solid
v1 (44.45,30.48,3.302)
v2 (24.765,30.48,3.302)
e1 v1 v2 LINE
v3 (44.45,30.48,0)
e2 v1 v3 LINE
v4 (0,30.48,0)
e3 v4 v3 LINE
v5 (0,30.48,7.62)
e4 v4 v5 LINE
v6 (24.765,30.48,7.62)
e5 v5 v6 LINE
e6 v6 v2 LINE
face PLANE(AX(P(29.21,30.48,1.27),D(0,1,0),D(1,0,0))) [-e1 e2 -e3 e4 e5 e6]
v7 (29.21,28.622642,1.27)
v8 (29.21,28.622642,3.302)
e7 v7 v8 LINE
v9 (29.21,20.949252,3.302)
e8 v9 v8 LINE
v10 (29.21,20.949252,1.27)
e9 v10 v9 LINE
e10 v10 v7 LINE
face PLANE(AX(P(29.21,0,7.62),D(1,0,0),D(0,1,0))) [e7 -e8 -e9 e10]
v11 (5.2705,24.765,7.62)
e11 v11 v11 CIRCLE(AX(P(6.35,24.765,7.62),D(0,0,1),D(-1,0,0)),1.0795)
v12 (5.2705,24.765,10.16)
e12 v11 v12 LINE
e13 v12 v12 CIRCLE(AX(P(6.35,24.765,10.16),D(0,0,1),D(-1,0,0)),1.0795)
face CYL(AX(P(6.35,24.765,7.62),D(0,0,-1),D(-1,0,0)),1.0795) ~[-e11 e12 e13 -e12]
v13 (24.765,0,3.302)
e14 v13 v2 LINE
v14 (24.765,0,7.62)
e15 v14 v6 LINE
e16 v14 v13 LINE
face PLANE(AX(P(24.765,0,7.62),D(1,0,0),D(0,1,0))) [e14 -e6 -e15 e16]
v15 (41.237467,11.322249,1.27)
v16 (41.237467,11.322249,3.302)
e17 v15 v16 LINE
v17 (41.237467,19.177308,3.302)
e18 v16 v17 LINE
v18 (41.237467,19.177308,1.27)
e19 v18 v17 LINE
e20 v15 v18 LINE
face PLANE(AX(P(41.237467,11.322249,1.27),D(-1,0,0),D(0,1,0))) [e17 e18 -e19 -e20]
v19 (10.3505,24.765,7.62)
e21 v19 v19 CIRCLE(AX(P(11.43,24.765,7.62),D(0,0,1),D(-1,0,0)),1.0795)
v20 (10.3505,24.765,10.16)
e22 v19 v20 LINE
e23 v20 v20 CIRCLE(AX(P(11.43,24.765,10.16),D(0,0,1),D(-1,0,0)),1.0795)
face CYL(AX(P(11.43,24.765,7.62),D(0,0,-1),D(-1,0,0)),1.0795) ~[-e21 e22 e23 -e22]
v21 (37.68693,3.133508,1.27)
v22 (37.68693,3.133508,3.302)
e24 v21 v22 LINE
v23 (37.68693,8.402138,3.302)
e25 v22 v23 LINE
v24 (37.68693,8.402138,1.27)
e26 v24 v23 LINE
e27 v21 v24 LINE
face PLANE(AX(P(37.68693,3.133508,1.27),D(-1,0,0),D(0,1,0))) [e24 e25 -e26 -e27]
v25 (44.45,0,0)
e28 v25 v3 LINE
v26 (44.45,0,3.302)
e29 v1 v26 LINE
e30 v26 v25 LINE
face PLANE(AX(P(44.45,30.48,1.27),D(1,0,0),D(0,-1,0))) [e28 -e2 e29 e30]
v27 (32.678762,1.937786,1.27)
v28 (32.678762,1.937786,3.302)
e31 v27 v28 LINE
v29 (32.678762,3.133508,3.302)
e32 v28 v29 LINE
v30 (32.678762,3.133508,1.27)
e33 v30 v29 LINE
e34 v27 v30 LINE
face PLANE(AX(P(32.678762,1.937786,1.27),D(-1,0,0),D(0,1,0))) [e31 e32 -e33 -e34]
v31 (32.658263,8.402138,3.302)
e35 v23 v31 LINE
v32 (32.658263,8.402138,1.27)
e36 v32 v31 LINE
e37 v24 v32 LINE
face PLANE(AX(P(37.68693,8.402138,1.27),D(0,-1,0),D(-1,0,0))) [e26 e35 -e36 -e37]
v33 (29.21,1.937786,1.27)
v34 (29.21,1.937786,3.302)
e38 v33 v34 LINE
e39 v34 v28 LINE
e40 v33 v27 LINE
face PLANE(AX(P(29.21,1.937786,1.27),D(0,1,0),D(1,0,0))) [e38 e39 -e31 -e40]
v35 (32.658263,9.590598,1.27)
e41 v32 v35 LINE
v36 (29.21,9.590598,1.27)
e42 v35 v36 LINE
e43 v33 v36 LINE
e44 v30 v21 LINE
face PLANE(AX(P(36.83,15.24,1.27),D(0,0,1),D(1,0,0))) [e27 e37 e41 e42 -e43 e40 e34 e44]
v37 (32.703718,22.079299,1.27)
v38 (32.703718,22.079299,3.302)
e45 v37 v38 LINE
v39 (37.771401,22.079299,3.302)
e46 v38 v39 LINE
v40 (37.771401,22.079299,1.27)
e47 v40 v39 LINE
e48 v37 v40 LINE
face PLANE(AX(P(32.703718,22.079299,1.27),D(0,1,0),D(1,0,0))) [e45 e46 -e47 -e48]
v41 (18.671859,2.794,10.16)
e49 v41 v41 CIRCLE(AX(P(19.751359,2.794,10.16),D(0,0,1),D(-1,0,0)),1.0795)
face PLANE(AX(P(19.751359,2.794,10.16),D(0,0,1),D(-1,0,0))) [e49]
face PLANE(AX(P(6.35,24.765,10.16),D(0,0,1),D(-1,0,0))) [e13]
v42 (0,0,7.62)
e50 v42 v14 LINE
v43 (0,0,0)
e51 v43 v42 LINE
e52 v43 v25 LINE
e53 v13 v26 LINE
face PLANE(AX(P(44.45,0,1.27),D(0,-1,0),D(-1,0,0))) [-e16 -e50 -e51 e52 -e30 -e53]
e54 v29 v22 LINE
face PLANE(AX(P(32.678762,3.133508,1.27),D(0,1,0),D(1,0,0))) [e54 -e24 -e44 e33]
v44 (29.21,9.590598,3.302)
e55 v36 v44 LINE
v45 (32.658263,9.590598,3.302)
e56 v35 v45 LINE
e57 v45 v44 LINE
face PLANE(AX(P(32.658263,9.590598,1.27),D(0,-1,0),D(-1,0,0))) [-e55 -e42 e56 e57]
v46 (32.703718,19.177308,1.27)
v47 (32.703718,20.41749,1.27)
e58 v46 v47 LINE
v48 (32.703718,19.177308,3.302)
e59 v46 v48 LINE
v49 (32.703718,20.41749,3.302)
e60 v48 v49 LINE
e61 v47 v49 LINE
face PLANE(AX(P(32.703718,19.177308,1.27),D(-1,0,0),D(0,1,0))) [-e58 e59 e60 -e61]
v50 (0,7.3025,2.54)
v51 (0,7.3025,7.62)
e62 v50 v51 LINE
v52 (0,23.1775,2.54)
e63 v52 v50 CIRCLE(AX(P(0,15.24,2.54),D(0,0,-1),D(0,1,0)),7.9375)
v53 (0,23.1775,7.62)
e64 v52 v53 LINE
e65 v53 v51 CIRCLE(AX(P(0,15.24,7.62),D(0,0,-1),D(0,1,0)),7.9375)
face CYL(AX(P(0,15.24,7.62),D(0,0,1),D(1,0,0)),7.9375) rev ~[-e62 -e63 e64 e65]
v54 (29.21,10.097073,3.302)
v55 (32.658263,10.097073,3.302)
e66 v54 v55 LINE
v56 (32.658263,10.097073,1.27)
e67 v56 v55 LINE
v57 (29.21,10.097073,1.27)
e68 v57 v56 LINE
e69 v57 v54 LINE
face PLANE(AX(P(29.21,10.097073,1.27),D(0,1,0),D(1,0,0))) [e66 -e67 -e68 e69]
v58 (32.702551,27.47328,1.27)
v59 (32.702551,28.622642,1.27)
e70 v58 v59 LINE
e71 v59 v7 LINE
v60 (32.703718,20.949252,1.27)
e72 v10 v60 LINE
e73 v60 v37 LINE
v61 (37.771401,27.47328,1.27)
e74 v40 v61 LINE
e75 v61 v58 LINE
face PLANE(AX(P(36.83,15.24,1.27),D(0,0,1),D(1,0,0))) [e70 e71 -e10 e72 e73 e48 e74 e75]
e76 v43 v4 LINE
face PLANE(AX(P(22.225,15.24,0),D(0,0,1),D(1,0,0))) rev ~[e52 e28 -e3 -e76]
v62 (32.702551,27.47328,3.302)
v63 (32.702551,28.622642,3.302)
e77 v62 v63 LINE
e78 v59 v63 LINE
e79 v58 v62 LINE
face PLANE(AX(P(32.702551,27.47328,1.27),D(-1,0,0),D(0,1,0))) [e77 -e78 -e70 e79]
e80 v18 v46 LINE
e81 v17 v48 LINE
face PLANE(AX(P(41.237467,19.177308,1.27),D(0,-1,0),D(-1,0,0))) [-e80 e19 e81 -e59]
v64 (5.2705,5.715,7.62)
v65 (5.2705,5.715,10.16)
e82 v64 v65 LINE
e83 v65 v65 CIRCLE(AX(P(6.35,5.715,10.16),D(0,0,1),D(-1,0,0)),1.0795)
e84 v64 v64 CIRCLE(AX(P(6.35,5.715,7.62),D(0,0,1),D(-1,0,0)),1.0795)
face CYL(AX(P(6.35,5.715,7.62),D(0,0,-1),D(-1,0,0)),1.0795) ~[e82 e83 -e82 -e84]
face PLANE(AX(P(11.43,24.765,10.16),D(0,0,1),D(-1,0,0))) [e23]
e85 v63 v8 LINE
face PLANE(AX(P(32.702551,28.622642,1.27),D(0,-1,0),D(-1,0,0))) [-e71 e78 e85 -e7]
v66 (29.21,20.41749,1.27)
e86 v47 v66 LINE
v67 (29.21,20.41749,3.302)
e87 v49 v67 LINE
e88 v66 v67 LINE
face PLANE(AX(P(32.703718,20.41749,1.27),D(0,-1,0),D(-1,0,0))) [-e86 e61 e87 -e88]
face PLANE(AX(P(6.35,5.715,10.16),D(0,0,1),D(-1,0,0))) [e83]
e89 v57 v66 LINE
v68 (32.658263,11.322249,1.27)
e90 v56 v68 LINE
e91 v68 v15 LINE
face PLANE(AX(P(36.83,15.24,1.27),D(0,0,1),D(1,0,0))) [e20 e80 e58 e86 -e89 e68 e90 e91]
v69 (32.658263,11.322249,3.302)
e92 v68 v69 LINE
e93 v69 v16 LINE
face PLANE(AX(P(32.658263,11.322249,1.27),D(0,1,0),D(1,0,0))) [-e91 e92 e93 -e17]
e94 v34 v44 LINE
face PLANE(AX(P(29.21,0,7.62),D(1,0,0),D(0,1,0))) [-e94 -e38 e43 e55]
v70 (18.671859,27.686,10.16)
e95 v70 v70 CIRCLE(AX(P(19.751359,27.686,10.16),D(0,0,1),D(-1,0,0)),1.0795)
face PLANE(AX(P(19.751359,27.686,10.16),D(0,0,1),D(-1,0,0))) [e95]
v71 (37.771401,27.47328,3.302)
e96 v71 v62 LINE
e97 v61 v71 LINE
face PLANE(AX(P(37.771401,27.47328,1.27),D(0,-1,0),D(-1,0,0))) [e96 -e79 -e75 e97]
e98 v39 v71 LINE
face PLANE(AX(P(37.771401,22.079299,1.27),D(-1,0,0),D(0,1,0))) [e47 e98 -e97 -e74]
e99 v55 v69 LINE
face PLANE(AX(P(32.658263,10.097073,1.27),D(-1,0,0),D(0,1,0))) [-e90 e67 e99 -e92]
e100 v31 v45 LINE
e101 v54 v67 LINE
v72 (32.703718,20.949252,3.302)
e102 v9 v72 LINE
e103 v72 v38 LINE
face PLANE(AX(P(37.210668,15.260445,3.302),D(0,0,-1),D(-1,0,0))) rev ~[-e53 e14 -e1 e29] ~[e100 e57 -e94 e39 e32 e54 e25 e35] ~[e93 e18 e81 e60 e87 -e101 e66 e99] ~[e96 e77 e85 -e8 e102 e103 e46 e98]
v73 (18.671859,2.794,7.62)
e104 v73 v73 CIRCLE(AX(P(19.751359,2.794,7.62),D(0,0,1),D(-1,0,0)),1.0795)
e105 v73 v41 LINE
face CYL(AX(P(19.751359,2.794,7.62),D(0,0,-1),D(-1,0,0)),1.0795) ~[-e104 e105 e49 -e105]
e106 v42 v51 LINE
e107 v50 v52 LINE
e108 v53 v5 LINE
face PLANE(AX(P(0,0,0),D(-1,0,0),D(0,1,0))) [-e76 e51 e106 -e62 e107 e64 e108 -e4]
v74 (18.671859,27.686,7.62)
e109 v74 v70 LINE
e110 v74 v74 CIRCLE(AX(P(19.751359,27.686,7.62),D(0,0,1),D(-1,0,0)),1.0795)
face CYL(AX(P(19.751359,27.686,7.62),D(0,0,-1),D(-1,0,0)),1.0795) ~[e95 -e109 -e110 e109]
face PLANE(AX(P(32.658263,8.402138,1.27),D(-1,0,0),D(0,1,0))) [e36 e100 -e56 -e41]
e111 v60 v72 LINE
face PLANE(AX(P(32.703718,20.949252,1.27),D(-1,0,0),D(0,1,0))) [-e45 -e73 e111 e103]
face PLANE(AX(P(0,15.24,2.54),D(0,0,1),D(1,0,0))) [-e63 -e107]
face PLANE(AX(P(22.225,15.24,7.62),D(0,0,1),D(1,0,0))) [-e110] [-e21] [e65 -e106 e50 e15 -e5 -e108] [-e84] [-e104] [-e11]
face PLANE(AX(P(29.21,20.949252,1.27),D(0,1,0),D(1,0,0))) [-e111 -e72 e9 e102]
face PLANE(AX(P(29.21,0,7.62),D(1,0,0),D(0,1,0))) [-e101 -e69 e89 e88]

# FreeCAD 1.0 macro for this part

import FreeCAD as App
import Part
import Sketcher
from FreeCAD import Vector
Q = App.Units.Quantity

doc = App.newDocument("Part")
params = doc.addObject("Spreadsheet::Sheet", "Params")
for row, (alias, value) in enumerate([
    ("sketch1_height", "1.2 in"),
    ("sketch1_width", "1.75 in"),
    ("pad1_length", "0.3 in"),
    ("sketch2_diameter", "0.085 in"),
    ("pad2_length", "0.1 in"),
    ("sketch3_diameter", "0.625 in"),
    ("pocket1_length", "0.2 in"),
    ("sketch4_width", "0.6 in"),
    ("sketch4_height", "1.2 in"),
    ("pocket2_length", "0.25 in"),
    ("sketch5_height", "1.2 in"),
    ("sketch5_width", "0.175 in"),
    ("pocket3_length", "0.17 in"),
    ("sketch6_width", "0.6 in"),
    ("sketch6_height", "1.2 in"),
    ("pad3_length", "0.08 in"),
], start=1):
    params.set(f"A{row}", alias)
    params.set(f"B{row}", "=" + value)
    params.setAlias(f"B{row}", alias)

body = doc.addObject("PartDesign::Body", "Body")

# Sketch on XY plane
sketch1 = body.newObject("Sketcher::SketchObject", "Sketch")
sketch1.AttachmentSupport = (doc.getObject("XY_Plane"), [""])
sketch1.MapMode = "FlatFace"
sketch1.addGeometry([
    Part.LineSegment(Vector(0, 30, 0), Vector(0, 0, 0)),
    Part.LineSegment(Vector(0, 0, 0), Vector(44, 0, 0)),
    Part.LineSegment(Vector(44, 0, 0), Vector(44, 30, 0)),
    Part.LineSegment(Vector(44, 30, 0), Vector(0, 30, 0)),
], False)
sketch1.addConstraint([
    Sketcher.Constraint("Coincident", 0, 2, 1, 1),
    Sketcher.Constraint("Coincident", 1, 2, 2, 1),
    Sketcher.Constraint("Coincident", 2, 2, 3, 1),
    Sketcher.Constraint("Coincident", 3, 2, 0, 1),
    Sketcher.Constraint("Vertical", 0),
    Sketcher.Constraint("Horizontal", 1),
    Sketcher.Constraint("Vertical", 2),
    Sketcher.Constraint("Horizontal", 3),
    Sketcher.Constraint("Coincident", 0, 2, -1, 1),
    Sketcher.Constraint("DistanceY", 0, 2, 0, 1, Q("1.2 in")),
    Sketcher.Constraint("DistanceX", 1, 1, 1, 2, Q("1.75 in")),
])
sketch1.setExpression("Constraints[9]", "Params.sketch1_height")
sketch1.setExpression("Constraints[10]", "Params.sketch1_width")
pad1 = body.newObject("PartDesign::Pad", "Pad")
pad1.Profile = sketch1
pad1.setExpression("Length", "Params.pad1_length")

# Sketch on XY plane
sketch2 = body.newObject("Sketcher::SketchObject", "Sketch001")
sketch2.AttachmentSupport = (doc.getObject("XY_Plane"), [""])
sketch2.MapMode = "FlatFace"
sketch2.AttachmentOffset = App.Placement(Vector(0, 0, 0.3 * 25.4), App.Rotation())
sketch2.addGeometry([
    Part.Circle(Vector(6.3, 24.8, 0), Vector(0, 0, 1), 1.1),  # 0
    Part.Circle(Vector(6.3, 5.7, 0), Vector(0, 0, 1), 1.1),  # 1
    Part.Circle(Vector(11.4, 24.8, 0), Vector(0, 0, 1), 1.1),  # 2
    Part.Circle(Vector(19.8, 27.7, 0), Vector(0, 0, 1), 1.1),  # 3
    Part.Circle(Vector(19.8, 2.8, 0), Vector(0, 0, 1), 1.1),  # 4
], False)
sketch2.addConstraint([
    Sketcher.Constraint("Equal", 0, 1),
    Sketcher.Constraint("Equal", 1, 2),
    Sketcher.Constraint("Equal", 2, 3),
    Sketcher.Constraint("Equal", 3, 4),
    Sketcher.Constraint("Horizontal", 0, 3, 2, 3),
    Sketcher.Constraint("Vertical", 0, 3, 1, 3),
    Sketcher.Constraint("Vertical", 3, 3, 4, 3),
    Sketcher.Constraint("Diameter", 0, Q("0.085 in")),
    Sketcher.Constraint("DistanceX", 0, 3, 2, 3, Q("0.2 in")),
    Sketcher.Constraint("DistanceX", -1, 1, 0, 3, Q("0.25 in")),
    Sketcher.Constraint("DistanceY", -1, 1, 3, 3, Q("1.09 in")),
    Sketcher.Constraint("DistanceY", -1, 1, 4, 3, Q("0.11 in")),
    Sketcher.Constraint("DistanceY", 1, 3, 0, 3, Q("0.75 in")),
    Sketcher.Constraint("DistanceY", -1, 1, 0, 3, Q("0.975 in")),
    Sketcher.Constraint("DistanceX", -1, 1, 3, 3, Q("19.751359 mm")),
])
sketch2.setExpression("Constraints[7]", "Params.sketch2_diameter")
pad2 = body.newObject("PartDesign::Pad", "Pad001")
pad2.Profile = sketch2
pad2.setExpression("Length", "Params.pad2_length")

# Sketch on XY plane
sketch3 = body.newObject("Sketcher::SketchObject", "Sketch002")
sketch3.AttachmentSupport = (doc.getObject("XY_Plane"), [""])
sketch3.MapMode = "FlatFace"
sketch3.AttachmentOffset = App.Placement(Vector(0, 0, 0.3 * 25.4), App.Rotation())
sketch3.addGeometry(Part.Circle(Vector(0, 15, 0), Vector(0, 0, 1), 8), False)
sketch3.addConstraint([
    Sketcher.Constraint("PointOnObject", 0, 3, -2),
    Sketcher.Constraint("Diameter", 0, Q("0.625 in")),
    Sketcher.Constraint("DistanceY", -1, 1, 0, 3, Q("0.6 in")),
])
sketch3.setExpression("Constraints[1]", "Params.sketch3_diameter")
pocket1 = body.newObject("PartDesign::Pocket", "Pocket")
pocket1.Profile = sketch3
pocket1.setExpression("Length", "Params.pocket1_length")

# Sketch on XY plane
sketch4 = body.newObject("Sketcher::SketchObject", "Sketch003")
sketch4.AttachmentSupport = (doc.getObject("XY_Plane"), [""])
sketch4.MapMode = "FlatFace"
sketch4.AttachmentOffset = App.Placement(Vector(0, 0, 0.3 * 25.4), App.Rotation())
sketch4.addGeometry([
    Part.LineSegment(Vector(29, 30, 0), Vector(29, 0, 0)),
    Part.LineSegment(Vector(29, 0, 0), Vector(44, 0, 0)),
    Part.LineSegment(Vector(44, 0, 0), Vector(44, 30, 0)),
    Part.LineSegment(Vector(44, 30, 0), Vector(29, 30, 0)),
], False)
sketch4.addConstraint([
    Sketcher.Constraint("Coincident", 0, 2, 1, 1),
    Sketcher.Constraint("Coincident", 1, 2, 2, 1),
    Sketcher.Constraint("Coincident", 2, 2, 3, 1),
    Sketcher.Constraint("Coincident", 3, 2, 0, 1),
    Sketcher.Constraint("Vertical", 0),
    Sketcher.Constraint("Horizontal", 1),
    Sketcher.Constraint("Vertical", 2),
    Sketcher.Constraint("Horizontal", 3),
    Sketcher.Constraint("PointOnObject", 0, 2, -1),
    Sketcher.Constraint("DistanceX", 1, 1, 1, 2, Q("0.6 in")),
    Sketcher.Constraint("DistanceY", 0, 2, 0, 1, Q("1.2 in")),
    Sketcher.Constraint("DistanceX", -1, 1, 0, 2, Q("1.15 in")),
])
sketch4.setExpression("Constraints[9]", "Params.sketch4_width")
sketch4.setExpression("Constraints[10]", "Params.sketch4_height")
pocket2 = body.newObject("PartDesign::Pocket", "Pocket001")
pocket2.Profile = sketch4
pocket2.setExpression("Length", "Params.pocket2_length")

# Sketch on XY plane
sketch5 = body.newObject("Sketcher::SketchObject", "Sketch004")
sketch5.AttachmentSupport = (doc.getObject("XY_Plane"), [""])
sketch5.MapMode = "FlatFace"
sketch5.AttachmentOffset = App.Placement(Vector(0, 0, 0.3 * 25.4), App.Rotation())
sketch5.addGeometry([
    Part.LineSegment(Vector(24.8, 30.5, 0), Vector(24.8, 0, 0)),
    Part.LineSegment(Vector(24.8, 0, 0), Vector(29.2, 0, 0)),
    Part.LineSegment(Vector(29.2, 0, 0), Vector(29.2, 30.5, 0)),
    Part.LineSegment(Vector(29.2, 30.5, 0), Vector(24.8, 30.5, 0)),
], False)
sketch5.addConstraint([
    Sketcher.Constraint("Coincident", 0, 2, 1, 1),
    Sketcher.Constraint("Coincident", 1, 2, 2, 1),
    Sketcher.Constraint("Coincident", 2, 2, 3, 1),
    Sketcher.Constraint("Coincident", 3, 2, 0, 1),
    Sketcher.Constraint("Vertical", 0),
    Sketcher.Constraint("Horizontal", 1),
    Sketcher.Constraint("Vertical", 2),
    Sketcher.Constraint("Horizontal", 3),
    Sketcher.Constraint("PointOnObject", 0, 2, -1),
    Sketcher.Constraint("DistanceY", 0, 2, 0, 1, Q("1.2 in")),
    Sketcher.Constraint("DistanceX", 1, 1, 1, 2, Q("0.175 in")),
    Sketcher.Constraint("DistanceX", -1, 1, 1, 2, Q("1.15 in")),
])
sketch5.setExpression("Constraints[9]", "Params.sketch5_height")
sketch5.setExpression("Constraints[10]", "Params.sketch5_width")
pocket3 = body.newObject("PartDesign::Pocket", "Pocket002")
pocket3.Profile = sketch5
pocket3.setExpression("Length", "Params.pocket3_length")

# Sketch on XY plane
sketch6 = body.newObject("Sketcher::SketchObject", "Sketch005")
sketch6.AttachmentSupport = (doc.getObject("XY_Plane"), [""])
sketch6.MapMode = "FlatFace"
sketch6.AttachmentOffset = App.Placement(Vector(0, 0, 0.05 * 25.4), App.Rotation())
sketch6.addGeometry([
    Part.LineSegment(Vector(29.2, 1.9, 0), Vector(29.2, 0, 0)),  # 0
    Part.LineSegment(Vector(29.2, 0, 0), Vector(44.5, 0, 0)),  # 1
    Part.LineSegment(Vector(44.5, 0, 0), Vector(44.5, 30.5, 0)),  # 2
    Part.LineSegment(Vector(44.5, 30.5, 0), Vector(29.2, 30.5, 0)),  # 3
    Part.LineSegment(Vector(29.2, 30.5, 0), Vector(29.2, 28.6, 0)),  # 4
    Part.LineSegment(Vector(29.2, 28.6, 0), Vector(32.7, 28.6, 0)),  # 5
    Part.LineSegment(Vector(32.7, 28.6, 0), Vector(32.7, 27.5, 0)),  # 6
    Part.LineSegment(Vector(32.7, 27.5, 0), Vector(37.8, 27.5, 0)),  # 7
    Part.LineSegment(Vector(37.8, 27.5, 0), Vector(37.8, 22.1, 0)),  # 8
    Part.LineSegment(Vector(37.8, 22.1, 0), Vector(32.7, 22.1, 0)),  # 9
    Part.LineSegment(Vector(32.7, 22.1, 0), Vector(32.7, 20.9, 0)),  # 10
    Part.LineSegment(Vector(32.7, 20.9, 0), Vector(29.2, 20.9, 0)),  # 11
    Part.LineSegment(Vector(29.2, 20.9, 0), Vector(29.2, 20.4, 0)),  # 12
    Part.LineSegment(Vector(29.2, 20.4, 0), Vector(32.7, 20.4, 0)),  # 13
    Part.LineSegment(Vector(32.7, 20.4, 0), Vector(32.7, 19.2, 0)),  # 14
    Part.LineSegment(Vector(32.7, 19.2, 0), Vector(41.2, 19.2, 0)),  # 15
    Part.LineSegment(Vector(41.2, 19.2, 0), Vector(41.2, 11.3, 0)),  # 16
    Part.LineSegment(Vector(41.2, 11.3, 0), Vector(32.7, 11.3, 0)),  # 17
    Part.LineSegment(Vector(32.7, 11.3, 0), Vector(32.7, 10.1, 0)),  # 18
    Part.LineSegment(Vector(32.7, 10.1, 0), Vector(29.2, 10.1, 0)),  # 19
    Part.LineSegment(Vector(29.2, 10.1, 0), Vector(29.2, 9.6, 0)),  # 20
    Part.LineSegment(Vector(29.2, 9.6, 0), Vector(32.7, 9.6, 0)),  # 21
    Part.LineSegment(Vector(32.7, 9.6, 0), Vector(32.7, 8.4, 0)),  # 22
    Part.LineSegment(Vector(32.7, 8.4, 0), Vector(37.7, 8.4, 0)),  # 23
    Part.LineSegment(Vector(37.7, 8.4, 0), Vector(37.7, 3.1, 0)),  # 24
    Part.LineSegment(Vector(37.7, 3.1, 0), Vector(32.7, 3.1, 0)),  # 25
    Part.LineSegment(Vector(32.7, 3.1, 0), Vector(32.7, 1.9, 0)),  # 26
    Part.LineSegment(Vector(32.7, 1.9, 0), Vector(29.2, 1.9, 0)),  # 27
], False)
sketch6.addConstraint([
    Sketcher.Constraint("Coincident", 0, 2, 1, 1),
    Sketcher.Constraint("Coincident", 1, 2, 2, 1),
    Sketcher.Constraint("Coincident", 2, 2, 3, 1),
    Sketcher.Constraint("Coincident", 3, 2, 4, 1),
    Sketcher.Constraint("Coincident", 4, 2, 5, 1),
    Sketcher.Constraint("Coincident", 5, 2, 6, 1),
    Sketcher.Constraint("Coincident", 6, 2, 7, 1),
    Sketcher.Constraint("Coincident", 7, 2, 8, 1),
    Sketcher.Constraint("Coincident", 8, 2, 9, 1),
    Sketcher.Constraint("Coincident", 9, 2, 10, 1),
    Sketcher.Constraint("Coincident", 10, 2, 11, 1),
    Sketcher.Constraint("Coincident", 11, 2, 12, 1),
    Sketcher.Constraint("Coincident", 12, 2, 13, 1),
    Sketcher.Constraint("Coincident", 13, 2, 14, 1),
    Sketcher.Constraint("Coincident", 14, 2, 15, 1),
    Sketcher.Constraint("Coincident", 15, 2, 16, 1),
    Sketcher.Constraint("Coincident", 16, 2, 17, 1),
    Sketcher.Constraint("Coincident", 17, 2, 18, 1),
    Sketcher.Constraint("Coincident", 18, 2, 19, 1),
    Sketcher.Constraint("Coincident", 19, 2, 20, 1),
    Sketcher.Constraint("Coincident", 20, 2, 21, 1),
    Sketcher.Constraint("Coincident", 21, 2, 22, 1),
    Sketcher.Constraint("Coincident", 22, 2, 23, 1),
    Sketcher.Constraint("Coincident", 23, 2, 24, 1),
    Sketcher.Constraint("Coincident", 24, 2, 25, 1),
    Sketcher.Constraint("Coincident", 25, 2, 26, 1),
    Sketcher.Constraint("Coincident", 26, 2, 27, 1),
    Sketcher.Constraint("Coincident", 27, 2, 0, 1),
    Sketcher.Constraint("Vertical", 0),
    Sketcher.Constraint("Horizontal", 1),
    Sketcher.Constraint("Vertical", 2),
    Sketcher.Constraint("Horizontal", 3),
    Sketcher.Constraint("Vertical", 4),
    Sketcher.Constraint("Horizontal", 5),
    Sketcher.Constraint("Vertical", 6),
    Sketcher.Constraint("Horizontal", 7),
    Sketcher.Constraint("Vertical", 8),
    Sketcher.Constraint("Horizontal", 9),
    Sketcher.Constraint("Vertical", 10),
    Sketcher.Constraint("Horizontal", 11),
    Sketcher.Constraint("Vertical", 12),
    Sketcher.Constraint("Horizontal", 13),
    Sketcher.Constraint("Vertical", 14),
    Sketcher.Constraint("Horizontal", 15),
    Sketcher.Constraint("Vertical", 16),
    Sketcher.Constraint("Horizontal", 17),
    Sketcher.Constraint("Vertical", 18),
    Sketcher.Constraint("Horizontal", 19),
    Sketcher.Constraint("Vertical", 20),
    Sketcher.Constraint("Horizontal", 21),
    Sketcher.Constraint("Vertical", 22),
    Sketcher.Constraint("Horizontal", 23),
    Sketcher.Constraint("Vertical", 24),
    Sketcher.Constraint("Horizontal", 25),
    Sketcher.Constraint("Vertical", 26),
    Sketcher.Constraint("Horizontal", 27),
    Sketcher.Constraint("PointOnObject", 0, 2, -1),
    Sketcher.Constraint("Vertical", 0, 2, 3, 2),
    Sketcher.Constraint("Vertical", 4, 2, 11, 2),
    Sketcher.Constraint("Vertical", 10, 2, 13, 2),
    Sketcher.Constraint("Vertical", 12, 2, 19, 2),
    Sketcher.Constraint("Vertical", 18, 2, 21, 2),
    Sketcher.Constraint("DistanceX", 1, 1, 1, 2, Q("0.6 in")),
    Sketcher.Constraint("DistanceY", 2, 1, 2, 2, Q("1.2 in")),
    Sketcher.Constraint("DistanceX", -1, 1, 0, 2, Q("1.15 in")),
    Sketcher.Constraint("DistanceX", 5, 1, 5, 2, Q("3.492551 mm")),
    Sketcher.Constraint("DistanceX", 7, 1, 7, 2, Q("5.068849 mm")),
    Sketcher.Constraint("DistanceX", 15, 1, 15, 2, Q("8.53375 mm")),
    Sketcher.Constraint("DistanceX", 25, 2, 25, 1, Q("5.008168 mm")),
    Sketcher.Constraint("DistanceX", 27, 2, 27, 1, Q("3.468762 mm")),
    Sketcher.Constraint("DistanceY", 8, 2, 8, 1, Q("5.393981 mm")),
    Sketcher.Constraint("DistanceY", 14, 2, 14, 1, Q("1.240182 mm")),
    Sketcher.Constraint("DistanceY", 16, 2, 16, 1, Q("7.855059 mm")),
    Sketcher.Constraint("DistanceY", 22, 2, 22, 1, Q("1.18846 mm")),
    Sketcher.Constraint("DistanceY", 24, 2, 24, 1, Q("5.26863 mm")),
    Sketcher.Constraint("DistanceY", 26, 2, 26, 1, Q("1.195722 mm")),
    Sketcher.Constraint("DistanceY", -1, 1, 8, 2, Q("22.079299 mm")),
    Sketcher.Constraint("DistanceY", -1, 1, 20, 2, Q("9.590598 mm")),
    Sketcher.Constraint("DistanceX", 22, 2, 25, 2, Q("0.020499 mm")),
    Sketcher.Constraint("DistanceX", 9, 2, 9, 1, Q("5.067683 mm")),
    Sketcher.Constraint("DistanceY", 4, 2, 4, 1, Q("1.857358 mm")),
    Sketcher.Constraint("DistanceY", 10, 2, 10, 1, Q("1.130046 mm")),
    Sketcher.Constraint("DistanceY", 12, 2, 12, 1, Q("0.531763 mm")),
    Sketcher.Constraint("DistanceY", 18, 2, 18, 1, Q("1.225176 mm")),
])
sketch6.setExpression("Constraints[62]", "Params.sketch6_width")
sketch6.setExpression("Constraints[63]", "Params.sketch6_height")
pad3 = body.newObject("PartDesign::Pad", "Pad002")
pad3.Profile = sketch6
pad3.setExpression("Length", "Params.pad3_length")

doc.recompute()
